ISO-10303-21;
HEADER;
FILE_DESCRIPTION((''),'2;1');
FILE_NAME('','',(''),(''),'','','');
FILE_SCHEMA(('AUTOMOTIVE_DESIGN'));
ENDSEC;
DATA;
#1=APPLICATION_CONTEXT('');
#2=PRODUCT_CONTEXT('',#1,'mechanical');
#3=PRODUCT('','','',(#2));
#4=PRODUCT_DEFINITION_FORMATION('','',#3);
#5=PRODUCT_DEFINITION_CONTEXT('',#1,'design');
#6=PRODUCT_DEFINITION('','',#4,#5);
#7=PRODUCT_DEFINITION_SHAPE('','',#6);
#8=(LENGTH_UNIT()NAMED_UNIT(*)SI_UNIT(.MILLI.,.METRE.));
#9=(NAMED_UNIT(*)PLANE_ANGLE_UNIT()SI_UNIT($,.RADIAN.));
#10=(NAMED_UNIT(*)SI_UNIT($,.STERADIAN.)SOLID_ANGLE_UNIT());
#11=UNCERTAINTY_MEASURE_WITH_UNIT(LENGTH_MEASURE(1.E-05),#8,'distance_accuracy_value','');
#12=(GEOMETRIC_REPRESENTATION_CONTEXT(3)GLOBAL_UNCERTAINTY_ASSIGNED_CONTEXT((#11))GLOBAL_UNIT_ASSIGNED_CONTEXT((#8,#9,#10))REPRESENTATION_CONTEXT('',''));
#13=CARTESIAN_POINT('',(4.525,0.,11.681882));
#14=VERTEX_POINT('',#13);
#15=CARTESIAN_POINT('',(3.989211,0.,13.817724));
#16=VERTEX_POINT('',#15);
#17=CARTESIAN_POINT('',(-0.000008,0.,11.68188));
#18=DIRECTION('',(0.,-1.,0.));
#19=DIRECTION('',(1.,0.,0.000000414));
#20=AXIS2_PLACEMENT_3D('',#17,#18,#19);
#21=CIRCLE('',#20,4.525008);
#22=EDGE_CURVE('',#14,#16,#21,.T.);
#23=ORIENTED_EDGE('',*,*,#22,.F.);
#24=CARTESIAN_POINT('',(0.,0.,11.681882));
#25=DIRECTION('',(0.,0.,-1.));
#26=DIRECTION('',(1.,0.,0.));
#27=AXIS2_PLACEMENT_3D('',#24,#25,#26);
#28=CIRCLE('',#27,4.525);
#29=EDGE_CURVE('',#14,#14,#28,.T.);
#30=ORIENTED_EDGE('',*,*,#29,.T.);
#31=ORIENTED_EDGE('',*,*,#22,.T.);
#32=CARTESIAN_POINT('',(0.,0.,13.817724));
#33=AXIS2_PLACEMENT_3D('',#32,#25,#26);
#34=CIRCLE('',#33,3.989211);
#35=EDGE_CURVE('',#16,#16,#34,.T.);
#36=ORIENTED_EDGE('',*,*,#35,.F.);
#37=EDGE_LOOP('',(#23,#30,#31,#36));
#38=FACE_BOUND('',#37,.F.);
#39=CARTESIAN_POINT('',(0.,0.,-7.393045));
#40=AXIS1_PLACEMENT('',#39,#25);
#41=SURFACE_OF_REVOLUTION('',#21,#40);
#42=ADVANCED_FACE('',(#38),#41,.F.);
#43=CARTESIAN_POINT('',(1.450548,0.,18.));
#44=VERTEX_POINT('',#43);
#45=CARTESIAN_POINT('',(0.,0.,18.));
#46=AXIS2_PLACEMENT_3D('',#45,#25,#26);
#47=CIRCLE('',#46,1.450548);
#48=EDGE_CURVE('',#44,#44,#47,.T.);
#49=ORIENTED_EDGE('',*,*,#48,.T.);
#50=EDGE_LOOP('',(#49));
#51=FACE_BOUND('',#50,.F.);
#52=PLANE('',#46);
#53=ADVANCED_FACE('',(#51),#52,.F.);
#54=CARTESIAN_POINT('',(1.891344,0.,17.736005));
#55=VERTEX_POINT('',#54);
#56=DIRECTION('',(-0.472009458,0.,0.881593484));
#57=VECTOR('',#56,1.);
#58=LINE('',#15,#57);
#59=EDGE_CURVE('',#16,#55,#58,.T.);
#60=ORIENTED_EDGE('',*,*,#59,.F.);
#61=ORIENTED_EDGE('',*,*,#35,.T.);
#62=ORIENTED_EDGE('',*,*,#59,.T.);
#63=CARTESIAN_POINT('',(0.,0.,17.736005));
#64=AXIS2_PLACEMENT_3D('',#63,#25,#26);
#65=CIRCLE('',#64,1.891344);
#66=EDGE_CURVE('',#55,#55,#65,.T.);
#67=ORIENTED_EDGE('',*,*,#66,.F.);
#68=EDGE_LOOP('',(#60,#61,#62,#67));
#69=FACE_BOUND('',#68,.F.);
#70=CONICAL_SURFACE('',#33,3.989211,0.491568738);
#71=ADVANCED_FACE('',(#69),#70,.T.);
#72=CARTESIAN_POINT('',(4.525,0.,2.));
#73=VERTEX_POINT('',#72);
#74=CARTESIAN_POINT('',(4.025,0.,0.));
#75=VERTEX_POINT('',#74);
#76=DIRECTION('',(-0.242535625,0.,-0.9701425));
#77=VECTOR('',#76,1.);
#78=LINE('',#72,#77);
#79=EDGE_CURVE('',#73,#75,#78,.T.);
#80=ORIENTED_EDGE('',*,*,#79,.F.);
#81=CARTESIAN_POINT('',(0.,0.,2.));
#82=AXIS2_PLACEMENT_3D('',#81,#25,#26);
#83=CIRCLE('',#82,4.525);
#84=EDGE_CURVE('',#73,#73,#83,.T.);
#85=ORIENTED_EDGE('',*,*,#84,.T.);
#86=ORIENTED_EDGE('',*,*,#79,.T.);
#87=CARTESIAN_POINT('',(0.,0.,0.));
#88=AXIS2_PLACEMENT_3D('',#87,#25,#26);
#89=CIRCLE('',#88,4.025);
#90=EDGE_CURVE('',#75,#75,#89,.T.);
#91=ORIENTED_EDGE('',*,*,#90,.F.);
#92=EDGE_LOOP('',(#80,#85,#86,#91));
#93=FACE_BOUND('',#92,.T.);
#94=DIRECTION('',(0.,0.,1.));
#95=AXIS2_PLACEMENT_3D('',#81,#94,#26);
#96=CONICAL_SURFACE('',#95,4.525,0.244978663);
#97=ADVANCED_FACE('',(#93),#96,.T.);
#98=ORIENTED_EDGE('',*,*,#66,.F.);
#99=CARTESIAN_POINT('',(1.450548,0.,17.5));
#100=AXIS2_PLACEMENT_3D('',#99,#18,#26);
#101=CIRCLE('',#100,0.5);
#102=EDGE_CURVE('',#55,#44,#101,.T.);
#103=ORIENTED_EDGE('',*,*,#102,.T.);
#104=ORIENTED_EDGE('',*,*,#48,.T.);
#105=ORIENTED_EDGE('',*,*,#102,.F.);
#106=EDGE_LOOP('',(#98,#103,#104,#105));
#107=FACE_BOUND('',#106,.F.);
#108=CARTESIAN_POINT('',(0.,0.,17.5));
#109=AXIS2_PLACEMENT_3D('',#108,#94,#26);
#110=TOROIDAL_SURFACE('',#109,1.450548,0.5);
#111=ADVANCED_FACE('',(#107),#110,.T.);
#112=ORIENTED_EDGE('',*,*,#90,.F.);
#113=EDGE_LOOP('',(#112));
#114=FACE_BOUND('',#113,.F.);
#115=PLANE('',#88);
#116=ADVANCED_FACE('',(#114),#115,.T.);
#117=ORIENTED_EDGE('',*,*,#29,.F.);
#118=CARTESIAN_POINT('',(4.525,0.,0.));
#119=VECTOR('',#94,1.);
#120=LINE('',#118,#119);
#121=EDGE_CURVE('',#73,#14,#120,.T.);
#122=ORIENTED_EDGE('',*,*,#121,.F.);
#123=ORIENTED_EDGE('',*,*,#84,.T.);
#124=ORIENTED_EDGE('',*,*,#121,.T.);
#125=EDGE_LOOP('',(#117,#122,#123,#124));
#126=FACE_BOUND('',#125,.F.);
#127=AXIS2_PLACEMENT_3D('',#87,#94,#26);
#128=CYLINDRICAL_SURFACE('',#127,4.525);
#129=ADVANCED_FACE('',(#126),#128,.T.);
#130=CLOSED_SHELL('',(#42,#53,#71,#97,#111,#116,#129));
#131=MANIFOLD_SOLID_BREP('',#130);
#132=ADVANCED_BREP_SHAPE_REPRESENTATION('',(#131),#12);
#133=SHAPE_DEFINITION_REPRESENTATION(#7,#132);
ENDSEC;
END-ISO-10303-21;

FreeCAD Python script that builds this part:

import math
import FreeCAD as App
import Part
import Sketcher


def edges_at(feature, points):
    """Names of the edges that pass closest to the given points."""
    edges = feature.Shape.Edges
    near = lambda p: min(range(len(edges)), key=lambda i: edges[i].distToShape(Part.Vertex(*p))[0])
    return sorted({f"Edge{near(p) + 1}" for p in points})

doc = App.newDocument("Part")
body = doc.addObject("PartDesign::Body", "Body")

# Sketch on XZ plane
sketch1 = doc.addObject("Sketcher::SketchObject", "Sketch")
body.addObject(sketch1)
sketch1.AttachmentSupport = (doc.XZ_Plane, [""])
sketch1.MapMode = "FlatFace"
sketch1.addGeometry(Part.LineSegment(App.Vector(0, 18, 0), App.Vector(0, 0, 0)), False)
sketch1.addGeometry(Part.LineSegment(App.Vector(0, 0, 0), App.Vector(4.5, 0, 0)), False)
sketch1.addGeometry(Part.LineSegment(App.Vector(4.5, 0, 0), App.Vector(4.5, 11.7, 0)), False)
sketch1.addGeometry(Part.ArcOfCircle(Part.Circle(App.Vector(0, 11.7, 0), App.Vector(0, 0, 1), 4.5), math.radians(0), math.radians(28)), False)
sketch1.addGeometry(Part.LineSegment(App.Vector(4, 13.8, 0), App.Vector(1.8, 18, 0)), False)
sketch1.addGeometry(Part.LineSegment(App.Vector(1.8, 18, 0), App.Vector(0, 18, 0)), False)
sketch1.addConstraint(Sketcher.Constraint("Coincident", 0, 2, 1, 1))
sketch1.addConstraint(Sketcher.Constraint("Coincident", 1, 2, 2, 1))
sketch1.addConstraint(Sketcher.Constraint("Tangent", 2, 2, 3, 1))
sketch1.addConstraint(Sketcher.Constraint("Tangent", 3, 2, 4, 1))
sketch1.addConstraint(Sketcher.Constraint("Coincident", 4, 2, 5, 1))
sketch1.addConstraint(Sketcher.Constraint("Coincident", 5, 2, 0, 1))
sketch1.addConstraint(Sketcher.Constraint("Vertical", 0))
sketch1.addConstraint(Sketcher.Constraint("Horizontal", 1))
sketch1.addConstraint(Sketcher.Constraint("Vertical", 2))
sketch1.addConstraint(Sketcher.Constraint("Horizontal", 5))
sketch1.addConstraint(Sketcher.Constraint("Coincident", 0, 2, -1, 1))
sketch1.addConstraint(Sketcher.Constraint("DistanceY", 0, 2, 0, 1, 18.0))
sketch1.addConstraint(Sketcher.Constraint("DistanceX", 5, 2, 5, 1, 1.75))
sketch1.addConstraint(Sketcher.Constraint("DistanceX", 1, 1, 1, 2, 4.525))
sketch1.addConstraint(Sketcher.Constraint("Radius", 3, 4.525008))
sketch1.addConstraint(Sketcher.Constraint("DistanceY", 2, 1, 2, 2, 11.681882))
revolution = doc.addObject("PartDesign::Revolution", "Revolution")
body.addObject(revolution)
revolution.Profile = sketch1
revolution.ReferenceAxis = (sketch1, ["V_Axis"])
revolution.Angle = 360
doc.recompute()

fillet = doc.addObject("PartDesign::Fillet", "Fillet")
body.addObject(fillet)
fillet.Base = (revolution, edges_at(revolution, [(-1.75, 0, 18)]))
fillet.Radius = 0.5
doc.recompute()

chamfer = doc.addObject("PartDesign::Chamfer", "Chamfer")
body.addObject(chamfer)
chamfer.Base = (fillet, edges_at(fillet, [(-4.525, 0, 0)]))
chamfer.ChamferType = "Two distances"
chamfer.Size = 2
chamfer.Size2 = 0.5

doc.recompute()
